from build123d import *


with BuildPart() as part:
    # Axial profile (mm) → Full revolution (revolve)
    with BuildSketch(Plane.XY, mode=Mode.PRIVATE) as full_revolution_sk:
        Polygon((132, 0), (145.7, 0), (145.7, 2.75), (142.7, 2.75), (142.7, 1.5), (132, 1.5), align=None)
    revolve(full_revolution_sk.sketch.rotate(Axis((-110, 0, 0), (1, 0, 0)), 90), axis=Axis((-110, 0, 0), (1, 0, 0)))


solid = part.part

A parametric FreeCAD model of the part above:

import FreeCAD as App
import Part
import Sketcher

V = App.Vector


def add_polygon(sketch, points):
    """Adds a closed chain of lines whose ends are joined by coincident constraints."""
    first, n = sketch.GeometryCount, len(points)
    for a, b in zip(points, points[1:] + points[:1]):
        sketch.addGeometry(Part.LineSegment(App.Vector(*a, 0), App.Vector(*b, 0)), False)
    for i in range(n):
        sketch.addConstraint(Sketcher.Constraint("Coincident", first + i, 2, first + (i + 1) % n, 1))

doc = App.newDocument("Part")
body = doc.addObject("PartDesign::Body", "Body")

# Sketch on XY plane
sketch1 = body.newObject("Sketcher::SketchObject", "Sketch")
sketch1.AttachmentSupport = (doc.getObject("XY_Plane"), [""])
sketch1.MapMode = "FlatFace"
add_polygon(sketch1, [(132, 0), (145.7, 0), (145.7, 2.75), (142.7, 2.75), (142.7, 1.5), (132, 1.5)])  # lines 0-5
sketch1.addConstraint(Sketcher.Constraint("Horizontal", 0))
sketch1.addConstraint(Sketcher.Constraint("Vertical", 1))
sketch1.addConstraint(Sketcher.Constraint("Horizontal", 2))
sketch1.addConstraint(Sketcher.Constraint("Vertical", 3))
sketch1.addConstraint(Sketcher.Constraint("Horizontal", 4))
sketch1.addConstraint(Sketcher.Constraint("Vertical", 5))
sketch1.addConstraint(Sketcher.Constraint("PointOnObject", 0, 2, -1))
sketch1.addConstraint(Sketcher.Constraint("DistanceX", 2, 2, 2, 1, 3.0))
sketch1.addConstraint(Sketcher.Constraint("DistanceX", 0, 1, 0, 2, 13.7))
sketch1.addConstraint(Sketcher.Constraint("DistanceY", 5, 2, 5, 1, 1.5))
sketch1.addConstraint(Sketcher.Constraint("DistanceX", -1, 1, 4, 2, 132.0))
sketch1.addConstraint(Sketcher.Constraint("DistanceY", 1, 1, 1, 2, 2.75))
revolution = body.newObject("PartDesign::Revolution", "Revolution")
revolution.Profile = sketch1
revolution.ReferenceAxis = (sketch1, ["H_Axis"])
revolution.Angle = 360

doc.recompute()
